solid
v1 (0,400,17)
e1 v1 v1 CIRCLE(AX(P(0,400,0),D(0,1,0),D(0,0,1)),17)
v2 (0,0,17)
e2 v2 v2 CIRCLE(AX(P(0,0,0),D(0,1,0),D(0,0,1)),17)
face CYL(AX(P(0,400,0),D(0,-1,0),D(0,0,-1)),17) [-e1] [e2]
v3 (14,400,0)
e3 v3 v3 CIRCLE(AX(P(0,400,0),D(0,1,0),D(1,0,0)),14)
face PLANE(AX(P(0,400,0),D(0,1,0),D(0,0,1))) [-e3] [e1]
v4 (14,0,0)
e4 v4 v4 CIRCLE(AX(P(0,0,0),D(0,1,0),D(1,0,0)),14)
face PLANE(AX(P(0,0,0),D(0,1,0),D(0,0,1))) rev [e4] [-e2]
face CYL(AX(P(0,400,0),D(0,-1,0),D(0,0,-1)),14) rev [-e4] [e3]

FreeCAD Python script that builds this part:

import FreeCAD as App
import Part
import Sketcher
from FreeCAD import Vector
Q = App.Units.Quantity

doc = App.newDocument("Part")
body = doc.addObject("PartDesign::Body", "Body")

sketch1 = body.newObject("Sketcher::SketchObject", "Sketch")
sketch1.AttachmentSupport = (doc.getObject("XZ_Plane"), [""])
sketch1.MapMode = "FlatFace"
sketch1.addGeometry([
    Part.Circle(Vector(0, 0, 0), Vector(0, 0, 1), 17),
    Part.Circle(Vector(0, 0, 0), Vector(0, 0, 1), 14),
], False)
sketch1.addConstraint([
    Sketcher.Constraint("Coincident", 0, 3, -1, 1),
    Sketcher.Constraint("Coincident", 1, 3, -1, 1),
    Sketcher.Constraint("Diameter", 0, Q("34 mm")),
    Sketcher.Constraint("Diameter", 1, Q("28 mm")),
])
pad1 = body.newObject("PartDesign::Pad", "Pad")
pad1.Profile = sketch1
pad1.Length = 400
pad1.Reversed = True

doc.recompute()
